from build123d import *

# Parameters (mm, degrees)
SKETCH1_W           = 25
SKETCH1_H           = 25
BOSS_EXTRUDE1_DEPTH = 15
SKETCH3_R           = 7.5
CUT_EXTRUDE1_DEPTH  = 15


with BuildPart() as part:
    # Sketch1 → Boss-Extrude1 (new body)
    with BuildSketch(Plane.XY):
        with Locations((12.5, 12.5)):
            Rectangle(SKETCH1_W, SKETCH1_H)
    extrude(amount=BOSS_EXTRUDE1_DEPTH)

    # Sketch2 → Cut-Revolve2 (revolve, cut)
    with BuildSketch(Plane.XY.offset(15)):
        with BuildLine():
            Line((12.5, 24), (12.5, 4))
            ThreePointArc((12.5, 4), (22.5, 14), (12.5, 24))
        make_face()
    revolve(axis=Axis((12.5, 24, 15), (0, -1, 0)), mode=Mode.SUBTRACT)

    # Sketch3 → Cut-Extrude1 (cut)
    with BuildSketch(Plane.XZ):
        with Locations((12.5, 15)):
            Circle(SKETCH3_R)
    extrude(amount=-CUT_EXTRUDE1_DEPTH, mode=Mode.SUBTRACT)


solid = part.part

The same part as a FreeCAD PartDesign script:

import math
import FreeCAD as App
import Part
import Sketcher
from FreeCAD import Vector

doc = App.newDocument("Part")
body = doc.addObject("PartDesign::Body", "Body")

sketch1 = doc.addObject("Sketcher::SketchObject", "Sketch")
body.addObject(sketch1)
sketch1.AttachmentSupport = (doc.XY_Plane, [""])
sketch1.MapMode = "FlatFace"
sketch1.addGeometry([
    Part.LineSegment(Vector(0, 25, 0), Vector(0, 0, 0)),
    Part.LineSegment(Vector(0, 0, 0), Vector(25, 0, 0)),
    Part.LineSegment(Vector(25, 0, 0), Vector(25, 25, 0)),
    Part.LineSegment(Vector(25, 25, 0), Vector(0, 25, 0)),
], False)
sketch1.addConstraint([
    Sketcher.Constraint("Coincident", 0, 2, 1, 1),
    Sketcher.Constraint("Coincident", 1, 2, 2, 1),
    Sketcher.Constraint("Coincident", 2, 2, 3, 1),
    Sketcher.Constraint("Coincident", 3, 2, 0, 1),
    Sketcher.Constraint("Vertical", 0),
    Sketcher.Constraint("Horizontal", 1),
    Sketcher.Constraint("Vertical", 2),
    Sketcher.Constraint("Horizontal", 3),
    Sketcher.Constraint("Coincident", 0, 2, -1, 1),
    Sketcher.Constraint("Equal", 3, 0),
    Sketcher.Constraint("DistanceX", 1, 1, 1, 2, 25.0),
])
pad1 = doc.addObject("PartDesign::Pad", "Pad")
body.addObject(pad1)
pad1.Profile = sketch1
pad1.Length = 15

sketch2 = doc.addObject("Sketcher::SketchObject", "Sketch001")
body.addObject(sketch2)
sketch2.AttachmentSupport = (doc.XY_Plane, [""])
sketch2.MapMode = "FlatFace"
sketch2.AttachmentOffset = App.Placement(Vector(0, 0, 15), App.Rotation())
sketch2.addGeometry([
    Part.LineSegment(Vector(12.5, 24, 0), Vector(12.5, 4, 0)),
    Part.ArcOfCircle(Part.Circle(Vector(12.5, 14, 0), Vector(0, 0, 1), 10), math.radians(-90), math.radians(90)),
], False)
sketch2.addGeometry(Part.LineSegment(Vector(12.5, 24, 0), Vector(12.5, 4, 0)), True)
sketch2.addConstraint([
    Sketcher.Constraint("Coincident", 0, 1, 1, 2),
    Sketcher.Constraint("Coincident", 1, 1, 0, 2),
    Sketcher.Constraint("Vertical", 0),
    Sketcher.Constraint("Vertical", 2),
    Sketcher.Constraint("Coincident", 2, 1, 0, 1),
    Sketcher.Constraint("Vertical", 1, 3, 0, 1),
    Sketcher.Constraint("Equal", 0, 2),
    Sketcher.Constraint("Radius", 1, 10.0),
    Sketcher.Constraint("DistanceY", -1, 1, 1, 3, 14.0),
    Sketcher.Constraint("DistanceX", -1, 1, 1, 3, 12.5),
])
groove = doc.addObject("PartDesign::Groove", "Groove")
body.addObject(groove)
groove.Profile = sketch2
groove.ReferenceAxis = (sketch2, ["Axis0"])
groove.Angle = 360

sketch3 = doc.addObject("Sketcher::SketchObject", "Sketch002")
body.addObject(sketch3)
sketch3.AttachmentSupport = (doc.XZ_Plane, [""])
sketch3.MapMode = "FlatFace"
sketch3.addGeometry(Part.Circle(Vector(12.5, 15, 0), Vector(0, 0, 1), 7.5), False)
sketch3.addConstraint([
    Sketcher.Constraint("Diameter", 0, 15.0),
    Sketcher.Constraint("DistanceY", -1, 1, 0, 3, 15.0),
    Sketcher.Constraint("DistanceX", -1, 1, 0, 3, 12.5),
])
pocket1 = doc.addObject("PartDesign::Pocket", "Pocket")
body.addObject(pocket1)
pocket1.Profile = sketch3
pocket1.Length = 15

doc.recompute()
